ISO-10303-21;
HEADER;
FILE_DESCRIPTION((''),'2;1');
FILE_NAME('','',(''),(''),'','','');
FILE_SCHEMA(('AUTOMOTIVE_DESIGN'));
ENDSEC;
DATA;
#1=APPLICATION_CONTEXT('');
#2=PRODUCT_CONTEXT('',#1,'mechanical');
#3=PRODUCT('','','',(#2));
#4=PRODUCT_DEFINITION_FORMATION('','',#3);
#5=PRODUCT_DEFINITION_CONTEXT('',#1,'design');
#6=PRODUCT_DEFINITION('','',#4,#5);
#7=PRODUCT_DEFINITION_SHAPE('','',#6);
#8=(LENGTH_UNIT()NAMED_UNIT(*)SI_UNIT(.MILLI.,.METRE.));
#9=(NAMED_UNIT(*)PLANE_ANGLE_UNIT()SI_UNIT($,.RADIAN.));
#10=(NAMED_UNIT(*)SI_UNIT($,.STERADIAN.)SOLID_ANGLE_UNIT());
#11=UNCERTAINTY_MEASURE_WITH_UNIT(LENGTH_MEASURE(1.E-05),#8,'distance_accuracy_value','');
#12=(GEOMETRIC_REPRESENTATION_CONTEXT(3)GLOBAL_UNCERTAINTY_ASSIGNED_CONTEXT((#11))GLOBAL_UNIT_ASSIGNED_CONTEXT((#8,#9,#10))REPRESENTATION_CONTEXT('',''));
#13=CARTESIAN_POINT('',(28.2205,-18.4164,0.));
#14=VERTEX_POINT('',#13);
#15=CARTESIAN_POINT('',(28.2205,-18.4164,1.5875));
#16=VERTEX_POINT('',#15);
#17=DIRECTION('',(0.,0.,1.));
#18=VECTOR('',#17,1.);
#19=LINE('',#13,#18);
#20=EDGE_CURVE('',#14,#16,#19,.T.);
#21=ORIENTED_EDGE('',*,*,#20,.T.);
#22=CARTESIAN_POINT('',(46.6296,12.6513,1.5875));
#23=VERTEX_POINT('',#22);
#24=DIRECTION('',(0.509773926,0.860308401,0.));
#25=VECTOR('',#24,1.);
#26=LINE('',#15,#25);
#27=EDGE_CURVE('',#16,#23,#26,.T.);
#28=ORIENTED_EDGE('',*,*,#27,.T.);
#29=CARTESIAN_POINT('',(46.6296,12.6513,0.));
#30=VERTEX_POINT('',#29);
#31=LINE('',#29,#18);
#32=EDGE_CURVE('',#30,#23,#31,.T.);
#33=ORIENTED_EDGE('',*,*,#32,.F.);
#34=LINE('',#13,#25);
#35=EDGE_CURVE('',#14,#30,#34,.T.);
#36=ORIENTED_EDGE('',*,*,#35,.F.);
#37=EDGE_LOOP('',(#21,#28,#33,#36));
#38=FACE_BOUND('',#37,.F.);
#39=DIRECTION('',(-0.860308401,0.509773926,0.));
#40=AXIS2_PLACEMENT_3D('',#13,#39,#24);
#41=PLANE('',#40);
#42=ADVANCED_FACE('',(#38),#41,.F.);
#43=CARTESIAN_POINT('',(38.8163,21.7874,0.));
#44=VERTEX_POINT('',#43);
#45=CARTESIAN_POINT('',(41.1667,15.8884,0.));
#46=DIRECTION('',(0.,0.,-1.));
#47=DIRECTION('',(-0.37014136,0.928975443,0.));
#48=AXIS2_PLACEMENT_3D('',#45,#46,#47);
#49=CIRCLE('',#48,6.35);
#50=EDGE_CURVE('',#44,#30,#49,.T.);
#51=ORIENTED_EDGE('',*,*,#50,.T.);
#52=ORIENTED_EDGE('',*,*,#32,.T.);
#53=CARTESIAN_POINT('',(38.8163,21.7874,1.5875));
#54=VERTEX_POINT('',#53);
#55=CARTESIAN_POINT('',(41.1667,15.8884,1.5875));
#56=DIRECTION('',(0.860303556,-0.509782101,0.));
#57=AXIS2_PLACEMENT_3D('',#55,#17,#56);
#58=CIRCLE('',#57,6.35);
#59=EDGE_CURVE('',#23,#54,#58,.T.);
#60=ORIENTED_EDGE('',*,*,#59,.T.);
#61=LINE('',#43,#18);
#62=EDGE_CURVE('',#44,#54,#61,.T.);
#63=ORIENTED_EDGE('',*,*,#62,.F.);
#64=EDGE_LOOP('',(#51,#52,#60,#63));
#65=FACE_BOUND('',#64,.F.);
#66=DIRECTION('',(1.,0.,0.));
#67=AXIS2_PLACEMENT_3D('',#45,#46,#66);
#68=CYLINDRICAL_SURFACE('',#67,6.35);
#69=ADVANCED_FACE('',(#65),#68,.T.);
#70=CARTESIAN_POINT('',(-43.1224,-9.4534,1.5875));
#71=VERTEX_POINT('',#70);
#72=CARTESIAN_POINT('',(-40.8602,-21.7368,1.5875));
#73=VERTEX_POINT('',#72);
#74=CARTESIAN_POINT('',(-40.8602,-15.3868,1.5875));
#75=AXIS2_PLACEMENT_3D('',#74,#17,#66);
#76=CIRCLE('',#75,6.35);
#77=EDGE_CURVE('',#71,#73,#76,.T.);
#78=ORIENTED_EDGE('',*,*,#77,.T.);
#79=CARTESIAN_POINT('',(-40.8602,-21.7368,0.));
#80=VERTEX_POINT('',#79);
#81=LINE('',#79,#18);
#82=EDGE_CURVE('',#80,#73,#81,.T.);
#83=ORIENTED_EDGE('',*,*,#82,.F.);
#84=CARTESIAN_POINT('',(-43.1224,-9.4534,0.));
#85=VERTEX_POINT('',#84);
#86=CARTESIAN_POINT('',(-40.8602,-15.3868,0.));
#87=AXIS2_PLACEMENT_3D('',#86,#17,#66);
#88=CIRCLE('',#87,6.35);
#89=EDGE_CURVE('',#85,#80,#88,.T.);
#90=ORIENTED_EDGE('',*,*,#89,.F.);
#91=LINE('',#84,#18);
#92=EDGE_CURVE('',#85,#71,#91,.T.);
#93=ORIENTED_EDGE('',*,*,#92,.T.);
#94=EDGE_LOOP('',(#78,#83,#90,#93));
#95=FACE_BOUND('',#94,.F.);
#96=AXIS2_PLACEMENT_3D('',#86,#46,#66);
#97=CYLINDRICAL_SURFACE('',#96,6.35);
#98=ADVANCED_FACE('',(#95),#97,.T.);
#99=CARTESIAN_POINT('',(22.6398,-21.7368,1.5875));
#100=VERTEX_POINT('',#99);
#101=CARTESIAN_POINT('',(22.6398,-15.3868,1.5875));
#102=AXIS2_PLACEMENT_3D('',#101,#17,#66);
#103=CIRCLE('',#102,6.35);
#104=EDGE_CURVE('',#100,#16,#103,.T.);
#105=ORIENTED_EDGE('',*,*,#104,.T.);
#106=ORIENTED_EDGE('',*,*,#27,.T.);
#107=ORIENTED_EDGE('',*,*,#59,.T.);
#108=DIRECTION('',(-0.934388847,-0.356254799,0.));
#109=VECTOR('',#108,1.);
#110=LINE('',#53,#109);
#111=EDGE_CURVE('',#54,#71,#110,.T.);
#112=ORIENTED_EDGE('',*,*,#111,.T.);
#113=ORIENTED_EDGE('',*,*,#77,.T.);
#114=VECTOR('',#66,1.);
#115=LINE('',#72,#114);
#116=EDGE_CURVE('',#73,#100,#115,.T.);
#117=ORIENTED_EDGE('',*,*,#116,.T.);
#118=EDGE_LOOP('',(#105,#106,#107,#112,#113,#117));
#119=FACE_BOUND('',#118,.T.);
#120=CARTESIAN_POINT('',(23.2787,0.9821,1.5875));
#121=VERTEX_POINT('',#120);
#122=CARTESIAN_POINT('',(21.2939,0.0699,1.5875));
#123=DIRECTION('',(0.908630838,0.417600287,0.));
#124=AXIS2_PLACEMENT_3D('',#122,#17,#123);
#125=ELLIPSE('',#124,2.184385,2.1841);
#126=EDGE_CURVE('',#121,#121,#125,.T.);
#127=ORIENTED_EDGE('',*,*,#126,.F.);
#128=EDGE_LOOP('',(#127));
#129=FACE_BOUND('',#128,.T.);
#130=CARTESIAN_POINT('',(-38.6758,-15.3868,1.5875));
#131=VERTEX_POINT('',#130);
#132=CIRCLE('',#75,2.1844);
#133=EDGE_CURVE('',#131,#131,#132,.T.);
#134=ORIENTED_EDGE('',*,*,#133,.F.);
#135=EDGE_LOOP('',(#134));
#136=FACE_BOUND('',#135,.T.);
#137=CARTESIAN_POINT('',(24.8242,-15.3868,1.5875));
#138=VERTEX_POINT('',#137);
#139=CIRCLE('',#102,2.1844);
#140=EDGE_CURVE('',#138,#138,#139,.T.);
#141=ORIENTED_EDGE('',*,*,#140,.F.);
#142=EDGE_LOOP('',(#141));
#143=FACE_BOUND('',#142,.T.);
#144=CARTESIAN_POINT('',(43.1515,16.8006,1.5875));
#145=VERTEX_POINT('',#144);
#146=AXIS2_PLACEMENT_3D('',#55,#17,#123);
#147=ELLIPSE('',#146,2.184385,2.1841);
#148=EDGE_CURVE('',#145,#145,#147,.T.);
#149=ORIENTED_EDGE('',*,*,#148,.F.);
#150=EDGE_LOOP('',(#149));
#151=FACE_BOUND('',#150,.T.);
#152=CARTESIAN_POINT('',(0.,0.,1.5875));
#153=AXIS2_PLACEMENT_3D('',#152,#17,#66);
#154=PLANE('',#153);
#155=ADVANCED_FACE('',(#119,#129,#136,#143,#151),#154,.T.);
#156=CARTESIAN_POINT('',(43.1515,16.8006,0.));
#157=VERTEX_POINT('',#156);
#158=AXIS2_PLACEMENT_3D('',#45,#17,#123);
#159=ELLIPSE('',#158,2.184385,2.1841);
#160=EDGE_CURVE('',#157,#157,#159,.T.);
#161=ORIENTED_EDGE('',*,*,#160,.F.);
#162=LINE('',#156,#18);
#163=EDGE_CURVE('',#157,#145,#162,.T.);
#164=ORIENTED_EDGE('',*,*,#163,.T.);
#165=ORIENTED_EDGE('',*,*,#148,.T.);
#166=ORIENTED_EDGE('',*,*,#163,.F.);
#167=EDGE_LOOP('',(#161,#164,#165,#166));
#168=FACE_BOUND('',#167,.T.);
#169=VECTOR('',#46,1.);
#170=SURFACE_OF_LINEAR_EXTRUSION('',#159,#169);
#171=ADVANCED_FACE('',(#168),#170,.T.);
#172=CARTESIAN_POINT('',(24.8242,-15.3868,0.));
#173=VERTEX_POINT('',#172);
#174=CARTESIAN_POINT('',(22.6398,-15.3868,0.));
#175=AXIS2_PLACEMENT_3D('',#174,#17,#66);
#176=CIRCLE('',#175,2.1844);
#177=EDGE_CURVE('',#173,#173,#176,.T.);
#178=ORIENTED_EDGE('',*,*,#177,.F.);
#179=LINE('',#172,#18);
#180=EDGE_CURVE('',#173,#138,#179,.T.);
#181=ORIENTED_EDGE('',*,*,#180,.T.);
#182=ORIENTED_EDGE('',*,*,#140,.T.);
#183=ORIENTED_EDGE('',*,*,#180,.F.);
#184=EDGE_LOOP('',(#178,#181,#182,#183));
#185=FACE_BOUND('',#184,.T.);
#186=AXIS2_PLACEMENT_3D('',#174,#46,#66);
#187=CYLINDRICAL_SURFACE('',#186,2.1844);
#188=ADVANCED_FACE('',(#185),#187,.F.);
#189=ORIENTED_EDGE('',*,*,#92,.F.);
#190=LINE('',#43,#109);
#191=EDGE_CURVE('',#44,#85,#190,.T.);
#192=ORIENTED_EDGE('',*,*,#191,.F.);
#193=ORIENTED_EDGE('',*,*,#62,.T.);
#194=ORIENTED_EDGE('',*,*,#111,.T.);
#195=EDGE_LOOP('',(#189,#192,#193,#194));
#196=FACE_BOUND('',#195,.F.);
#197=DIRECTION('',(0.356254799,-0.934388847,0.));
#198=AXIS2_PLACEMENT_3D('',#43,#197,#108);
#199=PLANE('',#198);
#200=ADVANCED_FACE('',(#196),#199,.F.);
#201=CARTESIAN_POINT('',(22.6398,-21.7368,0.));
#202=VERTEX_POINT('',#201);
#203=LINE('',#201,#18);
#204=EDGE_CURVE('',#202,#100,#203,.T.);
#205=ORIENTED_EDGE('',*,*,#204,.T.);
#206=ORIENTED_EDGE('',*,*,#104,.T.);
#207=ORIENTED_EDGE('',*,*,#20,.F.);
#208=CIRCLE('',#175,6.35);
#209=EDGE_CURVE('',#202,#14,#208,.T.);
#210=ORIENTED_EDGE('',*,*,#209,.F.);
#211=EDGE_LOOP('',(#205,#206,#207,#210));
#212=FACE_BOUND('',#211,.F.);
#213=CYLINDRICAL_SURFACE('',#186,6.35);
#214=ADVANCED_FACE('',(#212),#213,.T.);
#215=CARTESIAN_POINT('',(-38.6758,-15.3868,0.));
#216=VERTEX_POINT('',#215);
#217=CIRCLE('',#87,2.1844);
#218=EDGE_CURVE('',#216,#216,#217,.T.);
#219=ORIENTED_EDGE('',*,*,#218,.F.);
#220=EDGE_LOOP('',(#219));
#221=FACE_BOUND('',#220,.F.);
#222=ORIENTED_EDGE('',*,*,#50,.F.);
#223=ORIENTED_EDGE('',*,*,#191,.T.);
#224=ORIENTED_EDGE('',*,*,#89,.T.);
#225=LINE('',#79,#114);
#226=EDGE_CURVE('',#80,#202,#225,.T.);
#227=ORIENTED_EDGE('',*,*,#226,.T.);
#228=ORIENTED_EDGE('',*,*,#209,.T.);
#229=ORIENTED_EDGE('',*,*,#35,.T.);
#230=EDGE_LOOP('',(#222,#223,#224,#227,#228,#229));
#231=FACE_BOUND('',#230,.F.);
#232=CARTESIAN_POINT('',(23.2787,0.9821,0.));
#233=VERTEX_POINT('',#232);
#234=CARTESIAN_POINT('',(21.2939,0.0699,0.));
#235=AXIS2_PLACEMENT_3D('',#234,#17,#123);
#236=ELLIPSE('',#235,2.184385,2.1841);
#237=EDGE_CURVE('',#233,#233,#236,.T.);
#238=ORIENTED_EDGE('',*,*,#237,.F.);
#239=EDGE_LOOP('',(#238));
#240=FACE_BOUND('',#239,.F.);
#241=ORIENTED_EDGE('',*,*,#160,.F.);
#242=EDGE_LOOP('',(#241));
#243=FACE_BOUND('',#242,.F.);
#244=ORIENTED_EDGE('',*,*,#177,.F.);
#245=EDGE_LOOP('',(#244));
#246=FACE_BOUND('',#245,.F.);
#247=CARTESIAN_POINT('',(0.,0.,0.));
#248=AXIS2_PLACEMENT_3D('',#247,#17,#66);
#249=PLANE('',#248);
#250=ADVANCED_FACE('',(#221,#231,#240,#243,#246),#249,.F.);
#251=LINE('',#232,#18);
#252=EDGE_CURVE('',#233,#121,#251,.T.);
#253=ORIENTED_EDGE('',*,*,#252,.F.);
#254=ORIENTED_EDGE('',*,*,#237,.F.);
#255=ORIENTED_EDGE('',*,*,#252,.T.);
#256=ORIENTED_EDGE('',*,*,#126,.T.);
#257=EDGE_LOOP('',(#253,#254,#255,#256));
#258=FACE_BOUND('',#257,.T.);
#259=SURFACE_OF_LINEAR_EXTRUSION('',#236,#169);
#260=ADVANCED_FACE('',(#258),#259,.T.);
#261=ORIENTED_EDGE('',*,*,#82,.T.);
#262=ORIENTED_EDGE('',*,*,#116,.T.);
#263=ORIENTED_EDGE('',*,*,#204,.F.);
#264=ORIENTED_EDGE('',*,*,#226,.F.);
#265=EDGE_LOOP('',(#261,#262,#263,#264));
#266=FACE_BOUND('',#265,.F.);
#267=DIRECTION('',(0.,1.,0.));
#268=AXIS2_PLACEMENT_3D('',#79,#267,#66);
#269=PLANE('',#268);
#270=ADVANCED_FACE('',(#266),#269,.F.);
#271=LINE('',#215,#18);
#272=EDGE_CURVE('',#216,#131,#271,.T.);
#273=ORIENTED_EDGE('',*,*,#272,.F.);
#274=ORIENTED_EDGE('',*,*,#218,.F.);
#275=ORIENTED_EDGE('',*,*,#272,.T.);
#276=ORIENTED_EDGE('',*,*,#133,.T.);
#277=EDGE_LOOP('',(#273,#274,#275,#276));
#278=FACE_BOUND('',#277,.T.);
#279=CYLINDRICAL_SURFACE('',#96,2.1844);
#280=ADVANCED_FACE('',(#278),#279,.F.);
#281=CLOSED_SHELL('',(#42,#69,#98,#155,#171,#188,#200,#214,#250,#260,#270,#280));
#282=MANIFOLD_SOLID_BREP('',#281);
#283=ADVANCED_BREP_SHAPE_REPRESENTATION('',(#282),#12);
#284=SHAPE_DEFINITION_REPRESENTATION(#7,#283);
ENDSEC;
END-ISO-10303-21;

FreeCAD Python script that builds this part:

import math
import FreeCAD as App
import Part
import Sketcher
from FreeCAD import Vector
Q = App.Units.Quantity

doc = App.newDocument("Part")
params = doc.addObject("Spreadsheet::Sheet", "Params")
for row, (alias, value) in enumerate([
    ("sketch1_radius", "0.25 in"),
    ("sketch1_diameter", "0.172 in"),
    ("sketch1_width", "2.5 in"),
    ("pad1_length", "0.0625 in"),
], start=1):
    params.set(f"A{row}", alias)
    params.set(f"B{row}", "=" + value)
    params.setAlias(f"B{row}", alias)

body = doc.addObject("PartDesign::Body", "Body")

# Sketch on XY plane
sketch1 = body.newObject("Sketcher::SketchObject", "Sketch")
sketch1.AttachmentSupport = (doc.getObject("XY_Plane"), [""])
sketch1.MapMode = "FlatFace"
sketch1.addGeometry(Part.ArcOfCircle(Part.Circle(Vector(-40.8602, -15.3868, 0), Vector(0, 0, 1), 6.35), math.radians(110.870117), math.radians(270)), False)
sketch1.addGeometry(Part.LineSegment(Vector(-40.8602, -21.7368, 0), Vector(22.6398, -21.7368, 0)), False)
sketch1.addGeometry(Part.ArcOfCircle(Part.Circle(Vector(22.6398, -15.3868, 0), Vector(0, 0, 1), 6.35), math.radians(-90), math.radians(-28.49625)), False)
sketch1.addGeometry(Part.LineSegment(Vector(28.2205, -18.4164, 0), Vector(46.6296, 12.6513, 0)), False)
sketch1.addGeometry(Part.ArcOfCircle(Part.Circle(Vector(41.1667, 15.8884, 0), Vector(0, 0, 1), 6.35), math.radians(-30.649317), math.radians(111.724336)), False)
sketch1.addGeometry(Part.LineSegment(Vector(38.8163, 21.7874, 0), Vector(-43.1224, -9.4534, 0)), False)
sketch1.addGeometry(Part.Circle(Vector(-40.8602, -15.3868, 0), Vector(0, 0, 1), 2.1844), False)
sketch1.addGeometry(Part.Ellipse(Vector(23.2787, 0.9821, 0), Vector(20.381819, 2.054441, 0), Vector(21.2939, 0.0699, 0)), False)
sketch1.addGeometry(Part.Ellipse(Vector(43.1515, 16.8006, 0), Vector(40.254619, 17.872941, 0), Vector(41.1667, 15.8884, 0)), False)
sketch1.addGeometry(Part.Circle(Vector(22.6398, -15.3868, 0), Vector(0, 0, 1), 2.1844), False)
sketch1.addConstraint(Sketcher.Constraint("Block", 7))
sketch1.addConstraint(Sketcher.Constraint("Block", 8))
sketch1.addConstraint(Sketcher.Constraint("Tangent", 0, 2, 1, 1))
sketch1.addConstraint(Sketcher.Constraint("Tangent", 1, 2, 2, 1))
sketch1.addConstraint(Sketcher.Constraint("Coincident", 2, 2, 3, 1))
sketch1.addConstraint(Sketcher.Constraint("Tangent", 3, 2, 4, 1))
sketch1.addConstraint(Sketcher.Constraint("Coincident", 4, 2, 5, 1))
sketch1.addConstraint(Sketcher.Constraint("Tangent", 5, 2, 0, 1))
sketch1.addConstraint(Sketcher.Constraint("Horizontal", 1))
sketch1.addConstraint(Sketcher.Constraint("Coincident", 6, 3, 0, 3))
sketch1.addConstraint(Sketcher.Constraint("Coincident", 9, 3, 2, 3))
sketch1.addConstraint(Sketcher.Constraint("Equal", 0, 2))
sketch1.addConstraint(Sketcher.Constraint("Equal", 2, 4))
sketch1.addConstraint(Sketcher.Constraint("Equal", 6, 9))
sketch1.addConstraint(Sketcher.Constraint("Radius", 0, Q("0.25 in")))
sketch1.addConstraint(Sketcher.Constraint("Diameter", 6, Q("0.172 in")))
sketch1.addConstraint(Sketcher.Constraint("DistanceX", 1, 1, 1, 2, Q("2.5 in")))
sketch1.addConstraint(Sketcher.Constraint("Angle", 5, Q("-159.1296 deg")))
sketch1.addConstraint(Sketcher.Constraint("DistanceX", -1, 1, 3, 2, Q("1.8358 in")))
sketch1.addConstraint(Sketcher.Constraint("DistanceX", -1, 1, 4, 2, Q("1.5282 in")))
sketch1.addConstraint(Sketcher.Constraint("DistanceX", 2, 3, 4, 3, Q("0.7294 in")))
sketch1.addConstraint(Sketcher.Constraint("DistanceX", 2, 2, 4, 3, Q("0.5097 in")))
sketch1.addConstraint(Sketcher.Constraint("DistanceY", 0, 3, -1, 1, Q("15.3868 mm")))
sketch1.setExpression("Constraints[14]", "Params.sketch1_radius")
sketch1.setExpression("Constraints[15]", "Params.sketch1_diameter")
sketch1.setExpression("Constraints[16]", "Params.sketch1_width")
pad1 = body.newObject("PartDesign::Pad", "Pad")
pad1.Profile = sketch1
pad1.setExpression("Length", "Params.pad1_length")

doc.recompute()
